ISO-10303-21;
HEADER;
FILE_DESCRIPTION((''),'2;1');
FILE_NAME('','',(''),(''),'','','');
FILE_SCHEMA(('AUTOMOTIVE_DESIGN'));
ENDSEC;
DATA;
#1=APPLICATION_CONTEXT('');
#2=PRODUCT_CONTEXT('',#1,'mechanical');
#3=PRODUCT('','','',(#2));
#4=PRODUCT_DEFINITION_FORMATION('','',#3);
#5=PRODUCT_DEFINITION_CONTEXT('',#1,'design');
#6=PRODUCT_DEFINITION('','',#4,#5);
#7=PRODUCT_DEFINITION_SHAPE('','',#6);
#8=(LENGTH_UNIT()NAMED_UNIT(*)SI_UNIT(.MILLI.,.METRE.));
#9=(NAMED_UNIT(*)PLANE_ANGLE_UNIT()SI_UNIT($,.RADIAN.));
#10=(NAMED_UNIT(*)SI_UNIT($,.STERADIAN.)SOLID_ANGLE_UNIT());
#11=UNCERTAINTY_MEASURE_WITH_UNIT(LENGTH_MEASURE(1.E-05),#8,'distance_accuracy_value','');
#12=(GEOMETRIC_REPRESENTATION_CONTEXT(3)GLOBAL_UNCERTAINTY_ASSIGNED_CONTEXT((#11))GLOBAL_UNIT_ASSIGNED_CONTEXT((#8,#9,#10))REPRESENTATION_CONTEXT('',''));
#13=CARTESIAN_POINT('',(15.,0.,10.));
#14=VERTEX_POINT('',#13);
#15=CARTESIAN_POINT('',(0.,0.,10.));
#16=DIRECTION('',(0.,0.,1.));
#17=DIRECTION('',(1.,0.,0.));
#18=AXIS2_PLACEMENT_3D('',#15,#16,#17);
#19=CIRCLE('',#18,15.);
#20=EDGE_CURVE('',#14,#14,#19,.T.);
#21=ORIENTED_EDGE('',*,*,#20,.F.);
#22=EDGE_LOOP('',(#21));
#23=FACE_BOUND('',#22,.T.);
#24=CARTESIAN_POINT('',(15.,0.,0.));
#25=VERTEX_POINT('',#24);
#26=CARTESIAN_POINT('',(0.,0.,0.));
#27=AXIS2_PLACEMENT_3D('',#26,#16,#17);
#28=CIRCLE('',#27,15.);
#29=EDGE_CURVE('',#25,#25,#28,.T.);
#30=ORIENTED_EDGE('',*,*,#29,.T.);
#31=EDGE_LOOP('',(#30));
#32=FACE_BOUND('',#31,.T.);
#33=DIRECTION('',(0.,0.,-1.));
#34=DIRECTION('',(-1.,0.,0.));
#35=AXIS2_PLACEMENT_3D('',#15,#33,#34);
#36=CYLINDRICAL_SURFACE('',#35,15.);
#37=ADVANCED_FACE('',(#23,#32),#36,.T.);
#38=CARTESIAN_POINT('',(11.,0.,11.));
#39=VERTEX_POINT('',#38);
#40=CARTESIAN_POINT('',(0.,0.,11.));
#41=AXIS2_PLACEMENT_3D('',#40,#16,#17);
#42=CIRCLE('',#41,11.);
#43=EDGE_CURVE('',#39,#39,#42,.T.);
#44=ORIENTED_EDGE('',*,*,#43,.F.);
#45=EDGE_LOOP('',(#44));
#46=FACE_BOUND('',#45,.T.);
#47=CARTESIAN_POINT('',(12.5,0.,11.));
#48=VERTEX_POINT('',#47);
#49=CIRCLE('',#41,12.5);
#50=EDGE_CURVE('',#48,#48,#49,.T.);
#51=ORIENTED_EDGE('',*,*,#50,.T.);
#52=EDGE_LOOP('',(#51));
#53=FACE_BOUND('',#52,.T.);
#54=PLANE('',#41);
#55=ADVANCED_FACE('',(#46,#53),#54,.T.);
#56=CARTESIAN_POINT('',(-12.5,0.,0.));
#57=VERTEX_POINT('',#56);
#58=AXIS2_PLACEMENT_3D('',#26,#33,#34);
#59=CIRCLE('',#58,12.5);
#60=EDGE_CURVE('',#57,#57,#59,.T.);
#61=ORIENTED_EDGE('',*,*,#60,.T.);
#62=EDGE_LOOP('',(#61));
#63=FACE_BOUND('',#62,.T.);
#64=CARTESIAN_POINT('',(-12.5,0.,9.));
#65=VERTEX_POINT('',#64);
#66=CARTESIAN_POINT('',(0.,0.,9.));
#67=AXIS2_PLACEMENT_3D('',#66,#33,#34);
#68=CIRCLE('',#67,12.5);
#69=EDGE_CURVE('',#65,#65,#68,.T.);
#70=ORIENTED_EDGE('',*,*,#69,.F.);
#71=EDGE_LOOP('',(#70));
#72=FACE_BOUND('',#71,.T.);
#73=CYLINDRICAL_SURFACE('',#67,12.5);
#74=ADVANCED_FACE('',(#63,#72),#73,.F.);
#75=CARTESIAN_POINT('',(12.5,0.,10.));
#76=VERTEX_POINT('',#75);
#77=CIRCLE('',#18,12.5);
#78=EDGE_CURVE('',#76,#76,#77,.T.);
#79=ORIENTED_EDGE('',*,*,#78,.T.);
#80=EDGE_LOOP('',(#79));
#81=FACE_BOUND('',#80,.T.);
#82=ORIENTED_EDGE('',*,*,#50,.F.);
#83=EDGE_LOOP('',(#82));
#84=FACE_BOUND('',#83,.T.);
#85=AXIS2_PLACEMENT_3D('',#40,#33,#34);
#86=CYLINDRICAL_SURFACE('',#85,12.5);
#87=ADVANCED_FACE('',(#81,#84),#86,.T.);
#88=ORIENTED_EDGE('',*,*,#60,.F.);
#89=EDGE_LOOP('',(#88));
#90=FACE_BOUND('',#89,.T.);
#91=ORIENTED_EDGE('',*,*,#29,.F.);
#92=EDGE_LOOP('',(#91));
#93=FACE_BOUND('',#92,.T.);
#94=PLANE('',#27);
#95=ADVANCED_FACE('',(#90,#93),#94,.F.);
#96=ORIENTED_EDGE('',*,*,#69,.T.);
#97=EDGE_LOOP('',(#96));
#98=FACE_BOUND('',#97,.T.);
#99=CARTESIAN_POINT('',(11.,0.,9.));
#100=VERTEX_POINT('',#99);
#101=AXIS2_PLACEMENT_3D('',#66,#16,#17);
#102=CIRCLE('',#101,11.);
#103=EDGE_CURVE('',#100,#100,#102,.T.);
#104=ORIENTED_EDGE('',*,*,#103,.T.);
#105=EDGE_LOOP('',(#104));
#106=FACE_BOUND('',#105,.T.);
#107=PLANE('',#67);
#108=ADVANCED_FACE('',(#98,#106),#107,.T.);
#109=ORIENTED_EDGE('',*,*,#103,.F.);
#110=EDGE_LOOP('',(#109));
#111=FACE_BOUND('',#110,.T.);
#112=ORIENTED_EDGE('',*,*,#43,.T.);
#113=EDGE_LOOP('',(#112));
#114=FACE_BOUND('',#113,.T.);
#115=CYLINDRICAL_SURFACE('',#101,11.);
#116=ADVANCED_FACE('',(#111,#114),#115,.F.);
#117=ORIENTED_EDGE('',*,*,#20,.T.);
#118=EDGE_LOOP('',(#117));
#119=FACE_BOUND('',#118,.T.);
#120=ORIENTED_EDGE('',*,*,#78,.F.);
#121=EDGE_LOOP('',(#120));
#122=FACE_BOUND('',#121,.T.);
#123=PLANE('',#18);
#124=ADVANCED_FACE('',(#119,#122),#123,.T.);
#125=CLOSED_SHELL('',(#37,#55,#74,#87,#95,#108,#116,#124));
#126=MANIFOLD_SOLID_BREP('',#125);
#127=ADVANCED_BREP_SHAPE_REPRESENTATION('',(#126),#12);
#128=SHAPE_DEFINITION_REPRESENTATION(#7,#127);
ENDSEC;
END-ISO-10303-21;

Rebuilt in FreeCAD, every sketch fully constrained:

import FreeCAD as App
import Part
import Sketcher
Q = App.Units.Quantity

doc = App.newDocument("Part")
params = doc.addObject("Spreadsheet::Sheet", "Params")
for row, (alias, value) in enumerate([
    ("sketch1_diameter", "30 mm"),
    ("pad1_length", "10 mm"),
    ("sketch2_diameter", "25 mm"),
    ("pad2_length", "1 mm"),
    ("sketch3_diameter", "22 mm"),
    ("pocket1_length", "2 mm"),
    ("sketch4_diameter", "25 mm"),
    ("pocket2_length", "9 mm"),
], start=1):
    params.set(f"A{row}", alias)
    params.set(f"B{row}", "=" + value)
    params.setAlias(f"B{row}", alias)

body = doc.addObject("PartDesign::Body", "Body")

# Sketch on XY plane
sketch1 = body.newObject("Sketcher::SketchObject", "Sketch")
sketch1.AttachmentSupport = (doc.getObject("XY_Plane"), [""])
sketch1.MapMode = "FlatFace"
sketch1.addGeometry(Part.Circle(App.Vector(0, 0, 0), App.Vector(0, 0, 1), 15), False)
sketch1.addConstraint([
    Sketcher.Constraint("Coincident", 0, 3, -1, 1),
    Sketcher.Constraint("Diameter", 0, Q("30 mm")),
])
sketch1.setExpression("Constraints[1]", "Params.sketch1_diameter")
pad1 = body.newObject("PartDesign::Pad", "Pad")
pad1.Profile = sketch1
pad1.setExpression("Length", "Params.pad1_length")

# Sketch on XY plane
sketch2 = body.newObject("Sketcher::SketchObject", "Sketch001")
sketch2.AttachmentSupport = (doc.getObject("XY_Plane"), [""])
sketch2.MapMode = "FlatFace"
sketch2.AttachmentOffset = App.Placement(App.Vector(0, 0, 10), App.Rotation())
sketch2.addGeometry(Part.Circle(App.Vector(0, 0, 0), App.Vector(0, 0, 1), 12), False)
sketch2.addConstraint([
    Sketcher.Constraint("Coincident", 0, 3, -1, 1),
    Sketcher.Constraint("Diameter", 0, Q("25 mm")),
])
sketch2.setExpression("Constraints[1]", "Params.sketch2_diameter")
pad2 = body.newObject("PartDesign::Pad", "Pad001")
pad2.Profile = sketch2
pad2.setExpression("Length", "Params.pad2_length")

# Sketch on XY plane
sketch3 = body.newObject("Sketcher::SketchObject", "Sketch002")
sketch3.AttachmentSupport = (doc.getObject("XY_Plane"), [""])
sketch3.MapMode = "FlatFace"
sketch3.AttachmentOffset = App.Placement(App.Vector(0, 0, 11), App.Rotation())
sketch3.addGeometry(Part.Circle(App.Vector(0, 0, 0), App.Vector(0, 0, 1), 11), False)
sketch3.addConstraint([
    Sketcher.Constraint("Coincident", 0, 3, -1, 1),
    Sketcher.Constraint("Diameter", 0, Q("22 mm")),
])
sketch3.setExpression("Constraints[1]", "Params.sketch3_diameter")
pocket1 = body.newObject("PartDesign::Pocket", "Pocket")
pocket1.Profile = sketch3
pocket1.setExpression("Length", "Params.pocket1_length")

# Sketch on XY plane
sketch4 = body.newObject("Sketcher::SketchObject", "Sketch003")
sketch4.AttachmentSupport = (doc.getObject("XY_Plane"), [""])
sketch4.MapMode = "FlatFace"
sketch4.addGeometry(Part.Circle(App.Vector(0, 0, 0), App.Vector(0, 0, 1), 12), False)
sketch4.addConstraint([
    Sketcher.Constraint("Coincident", 0, 3, -1, 1),
    Sketcher.Constraint("Diameter", 0, Q("25 mm")),
])
sketch4.setExpression("Constraints[1]", "Params.sketch4_diameter")
pocket2 = body.newObject("PartDesign::Pocket", "Pocket001")
pocket2.Profile = sketch4
pocket2.setExpression("Length", "Params.pocket2_length")
pocket2.Reversed = True

doc.recompute()
